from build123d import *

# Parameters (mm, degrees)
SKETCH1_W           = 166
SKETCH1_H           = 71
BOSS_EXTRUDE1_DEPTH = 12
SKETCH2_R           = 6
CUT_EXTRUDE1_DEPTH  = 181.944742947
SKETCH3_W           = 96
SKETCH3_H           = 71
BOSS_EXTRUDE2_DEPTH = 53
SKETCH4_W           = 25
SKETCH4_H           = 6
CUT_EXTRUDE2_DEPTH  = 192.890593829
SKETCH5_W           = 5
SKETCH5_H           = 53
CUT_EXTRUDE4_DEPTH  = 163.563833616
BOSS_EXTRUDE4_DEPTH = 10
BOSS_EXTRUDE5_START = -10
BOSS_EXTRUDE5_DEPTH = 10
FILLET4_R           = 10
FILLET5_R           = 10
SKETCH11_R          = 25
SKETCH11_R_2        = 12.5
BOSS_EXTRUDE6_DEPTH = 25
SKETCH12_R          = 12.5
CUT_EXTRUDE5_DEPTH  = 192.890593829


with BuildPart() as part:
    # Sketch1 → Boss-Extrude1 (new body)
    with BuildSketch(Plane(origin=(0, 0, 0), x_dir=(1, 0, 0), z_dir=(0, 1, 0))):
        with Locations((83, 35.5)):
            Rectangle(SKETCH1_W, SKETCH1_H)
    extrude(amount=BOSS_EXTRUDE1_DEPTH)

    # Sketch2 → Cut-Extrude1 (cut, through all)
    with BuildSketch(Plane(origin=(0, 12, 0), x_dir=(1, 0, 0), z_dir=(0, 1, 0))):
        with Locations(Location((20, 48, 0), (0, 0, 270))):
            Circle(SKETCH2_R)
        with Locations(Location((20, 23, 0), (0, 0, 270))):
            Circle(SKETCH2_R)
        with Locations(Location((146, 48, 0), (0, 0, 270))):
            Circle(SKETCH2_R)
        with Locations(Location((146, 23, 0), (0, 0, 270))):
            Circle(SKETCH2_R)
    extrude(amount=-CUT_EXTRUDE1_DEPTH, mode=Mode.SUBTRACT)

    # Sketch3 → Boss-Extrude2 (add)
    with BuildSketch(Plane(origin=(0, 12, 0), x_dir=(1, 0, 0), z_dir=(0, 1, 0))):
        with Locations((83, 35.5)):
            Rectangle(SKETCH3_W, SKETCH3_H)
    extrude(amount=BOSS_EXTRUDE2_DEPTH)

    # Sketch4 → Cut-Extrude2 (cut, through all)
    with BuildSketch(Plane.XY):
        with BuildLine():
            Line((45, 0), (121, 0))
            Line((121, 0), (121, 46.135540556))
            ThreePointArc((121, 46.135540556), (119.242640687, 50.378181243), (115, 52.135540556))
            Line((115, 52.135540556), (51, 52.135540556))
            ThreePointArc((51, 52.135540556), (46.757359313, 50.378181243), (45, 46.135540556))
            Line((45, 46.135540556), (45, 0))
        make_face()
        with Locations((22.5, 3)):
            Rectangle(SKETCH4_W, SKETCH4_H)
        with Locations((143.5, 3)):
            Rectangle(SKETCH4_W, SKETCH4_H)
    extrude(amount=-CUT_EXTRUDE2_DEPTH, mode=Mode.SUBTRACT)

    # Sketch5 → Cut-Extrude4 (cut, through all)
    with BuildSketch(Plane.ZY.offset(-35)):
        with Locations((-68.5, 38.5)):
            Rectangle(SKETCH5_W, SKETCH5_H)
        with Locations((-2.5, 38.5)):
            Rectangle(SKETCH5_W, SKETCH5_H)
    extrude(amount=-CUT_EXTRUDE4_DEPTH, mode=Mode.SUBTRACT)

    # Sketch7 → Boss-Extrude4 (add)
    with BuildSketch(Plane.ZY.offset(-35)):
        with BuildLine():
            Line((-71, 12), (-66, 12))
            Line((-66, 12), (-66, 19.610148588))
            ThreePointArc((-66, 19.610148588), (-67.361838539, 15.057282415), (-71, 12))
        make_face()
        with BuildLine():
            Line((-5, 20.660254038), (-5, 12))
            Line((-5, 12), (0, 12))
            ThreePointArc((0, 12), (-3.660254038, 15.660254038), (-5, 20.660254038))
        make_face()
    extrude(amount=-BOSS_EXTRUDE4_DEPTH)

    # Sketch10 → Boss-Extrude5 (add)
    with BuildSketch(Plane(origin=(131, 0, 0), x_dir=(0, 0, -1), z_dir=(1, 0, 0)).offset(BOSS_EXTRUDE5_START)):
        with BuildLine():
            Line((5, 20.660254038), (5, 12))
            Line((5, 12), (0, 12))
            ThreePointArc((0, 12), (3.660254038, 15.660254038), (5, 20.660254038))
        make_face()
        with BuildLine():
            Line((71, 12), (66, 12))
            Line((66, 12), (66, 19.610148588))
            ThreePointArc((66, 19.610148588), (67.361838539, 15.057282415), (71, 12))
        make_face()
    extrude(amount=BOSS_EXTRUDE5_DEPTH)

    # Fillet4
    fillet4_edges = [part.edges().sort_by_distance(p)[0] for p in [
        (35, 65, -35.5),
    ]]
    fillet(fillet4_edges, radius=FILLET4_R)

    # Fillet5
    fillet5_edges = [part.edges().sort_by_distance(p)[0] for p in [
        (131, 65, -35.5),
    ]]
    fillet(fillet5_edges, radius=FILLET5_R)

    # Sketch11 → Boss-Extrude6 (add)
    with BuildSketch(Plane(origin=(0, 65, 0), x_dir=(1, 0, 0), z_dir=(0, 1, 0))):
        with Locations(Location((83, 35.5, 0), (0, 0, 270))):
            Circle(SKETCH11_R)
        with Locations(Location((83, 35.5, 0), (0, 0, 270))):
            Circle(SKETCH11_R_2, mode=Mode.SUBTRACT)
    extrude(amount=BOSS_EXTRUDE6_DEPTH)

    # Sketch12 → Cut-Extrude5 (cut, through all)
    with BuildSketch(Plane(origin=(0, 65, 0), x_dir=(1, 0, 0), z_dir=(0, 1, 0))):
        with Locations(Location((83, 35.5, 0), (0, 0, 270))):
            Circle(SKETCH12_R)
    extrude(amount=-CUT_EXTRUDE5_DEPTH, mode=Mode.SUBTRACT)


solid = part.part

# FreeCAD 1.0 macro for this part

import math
import FreeCAD as App
import Part
import Sketcher


def edges_at(feature, points):
    """Names of the edges that pass closest to the given points."""
    edges = feature.Shape.Edges
    near = lambda p: min(range(len(edges)), key=lambda i: edges[i].distToShape(Part.Vertex(*p))[0])
    return sorted({f"Edge{near(p) + 1}" for p in points})

doc = App.newDocument("Part")
params = doc.addObject("Spreadsheet::Sheet", "Params")
for row, (alias, value) in enumerate([
    ("sketch1_width", "166 mm"),
    ("sketch1_height", "71 mm"),
    ("pad1_length", "12 mm"),
    ("sketch2_diameter", "12 mm"),
    ("sketch3_width", "96 mm"),
    ("sketch3_height", "71 mm"),
    ("pad2_length", "53 mm"),
    ("sketch4_radius", "6 mm"),
    ("sketch4_width", "76 mm"),
    ("sketch4_width2", "25 mm"),
    ("sketch4_height", "6 mm"),
    ("sketch5_width", "53 mm"),
    ("sketch5_height", "5 mm"),
    ("sketch6_radius", "10 mm"),
    ("sketch6_height", "5 mm"),
    ("pad3_length", "10 mm"),
    ("sketch7_radius", "10 mm"),
    ("sketch7_height", "5 mm"),
    ("pad4_length", "10 mm"),
    ("fillet_radius", "10 mm"),
    ("fillet2_radius", "10 mm"),
    ("sketch8_diameter", "50 mm"),
    ("sketch8_diameter2", "25 mm"),
    ("pad5_length", "25 mm"),
    ("sketch9_diameter", "25 mm"),
], start=1):
    params.set(f"A{row}", alias)
    params.set(f"B{row}", "=" + value)
    params.setAlias(f"B{row}", alias)

body = doc.addObject("PartDesign::Body", "Body")

sketch1 = doc.addObject("Sketcher::SketchObject", "Sketch")
body.addObject(sketch1)
sketch1.AttachmentSupport = (doc.XZ_Plane, [""])
sketch1.MapMode = "FlatFace"
sketch1.addGeometry([
    Part.LineSegment(App.Vector(0, -71, 0), App.Vector(0, 0, 0)),
    Part.LineSegment(App.Vector(0, 0, 0), App.Vector(166, 0, 0)),
    Part.LineSegment(App.Vector(166, 0, 0), App.Vector(166, -71, 0)),
    Part.LineSegment(App.Vector(166, -71, 0), App.Vector(0, -71, 0)),
], False)
sketch1.addConstraint([
    Sketcher.Constraint("Coincident", 0, 2, 1, 1),
    Sketcher.Constraint("Coincident", 1, 2, 2, 1),
    Sketcher.Constraint("Coincident", 2, 2, 3, 1),
    Sketcher.Constraint("Coincident", 3, 2, 0, 1),
    Sketcher.Constraint("Vertical", 0),
    Sketcher.Constraint("Horizontal", 1),
    Sketcher.Constraint("Vertical", 2),
    Sketcher.Constraint("Horizontal", 3),
    Sketcher.Constraint("Coincident", 0, 2, -1, 1),
    Sketcher.Constraint("DistanceX", 1, 1, 1, 2, 166.0),
    Sketcher.Constraint("DistanceY", 0, 1, 0, 2, 71.0),
])
sketch1.setExpression("Constraints[9]", "Params.sketch1_width")
sketch1.setExpression("Constraints[10]", "Params.sketch1_height")
pad1 = doc.addObject("PartDesign::Pad", "Pad")
body.addObject(pad1)
pad1.Profile = sketch1
pad1.setExpression("Length", "Params.pad1_length")
pad1.Reversed = True

sketch2 = doc.addObject("Sketcher::SketchObject", "Sketch001")
body.addObject(sketch2)
sketch2.AttachmentSupport = (doc.XZ_Plane, [""])
sketch2.MapMode = "FlatFace"
sketch2.AttachmentOffset = App.Placement(App.Vector(0, 0, -12), App.Rotation())
sketch2.addGeometry([
    Part.Circle(App.Vector(20, -48, 0), App.Vector(0, 0, 1), 6),
    Part.Circle(App.Vector(20, -23, 0), App.Vector(0, 0, 1), 6),
    Part.Circle(App.Vector(146, -48, 0), App.Vector(0, 0, 1), 6),
    Part.Circle(App.Vector(146, -23, 0), App.Vector(0, 0, 1), 6),
], False)
sketch2.addConstraint([
    Sketcher.Constraint("Equal", 0, 1),
    Sketcher.Constraint("Equal", 1, 2),
    Sketcher.Constraint("Equal", 2, 3),
    Sketcher.Constraint("Horizontal", 0, 3, 2, 3),
    Sketcher.Constraint("Horizontal", 1, 3, 3, 3),
    Sketcher.Constraint("Vertical", 0, 3, 1, 3),
    Sketcher.Constraint("Vertical", 2, 3, 3, 3),
    Sketcher.Constraint("Diameter", 0, 12.0),
    Sketcher.Constraint("DistanceX", -1, 1, 0, 3, 20.0),
    Sketcher.Constraint("DistanceY", 0, 3, -1, 1, 48.0),
    Sketcher.Constraint("DistanceY", 1, 3, -1, 1, 23.0),
    Sketcher.Constraint("DistanceX", -1, 1, 2, 3, 146.0),
])
sketch2.setExpression("Constraints[7]", "Params.sketch2_diameter")
pocket1 = doc.addObject("PartDesign::Pocket", "Pocket")
body.addObject(pocket1)
pocket1.Profile = sketch2
pocket1.Type = "ThroughAll"
pocket1.Reversed = True

sketch3 = doc.addObject("Sketcher::SketchObject", "Sketch002")
body.addObject(sketch3)
sketch3.AttachmentSupport = (doc.XZ_Plane, [""])
sketch3.MapMode = "FlatFace"
sketch3.AttachmentOffset = App.Placement(App.Vector(0, 0, -12), App.Rotation())
sketch3.addGeometry([
    Part.LineSegment(App.Vector(35, -71, 0), App.Vector(35, 0, 0)),
    Part.LineSegment(App.Vector(35, 0, 0), App.Vector(131, 0, 0)),
    Part.LineSegment(App.Vector(131, 0, 0), App.Vector(131, -71, 0)),
    Part.LineSegment(App.Vector(131, -71, 0), App.Vector(35, -71, 0)),
], False)
sketch3.addConstraint([
    Sketcher.Constraint("Coincident", 0, 2, 1, 1),
    Sketcher.Constraint("Coincident", 1, 2, 2, 1),
    Sketcher.Constraint("Coincident", 2, 2, 3, 1),
    Sketcher.Constraint("Coincident", 3, 2, 0, 1),
    Sketcher.Constraint("Vertical", 0),
    Sketcher.Constraint("Horizontal", 1),
    Sketcher.Constraint("Vertical", 2),
    Sketcher.Constraint("Horizontal", 3),
    Sketcher.Constraint("PointOnObject", 0, 2, -1),
    Sketcher.Constraint("DistanceX", 1, 1, 1, 2, 96.0),
    Sketcher.Constraint("DistanceY", 0, 1, 0, 2, 71.0),
    Sketcher.Constraint("DistanceX", -1, 1, 0, 2, 35.0),
])
sketch3.setExpression("Constraints[9]", "Params.sketch3_width")
sketch3.setExpression("Constraints[10]", "Params.sketch3_height")
pad2 = doc.addObject("PartDesign::Pad", "Pad001")
body.addObject(pad2)
pad2.Profile = sketch3
pad2.setExpression("Length", "Params.pad2_length")
pad2.Reversed = True

sketch4 = doc.addObject("Sketcher::SketchObject", "Sketch003")
body.addObject(sketch4)
sketch4.AttachmentSupport = (doc.XY_Plane, [""])
sketch4.MapMode = "FlatFace"
sketch4.addGeometry([
    Part.LineSegment(App.Vector(45, 0, 0), App.Vector(121, 0, 0)),
    Part.LineSegment(App.Vector(121, 0, 0), App.Vector(121, 46, 0)),
    Part.ArcOfCircle(Part.Circle(App.Vector(115, 46, 0), App.Vector(0, 0, 1), 6), math.radians(0), math.radians(90)),
    Part.LineSegment(App.Vector(115, 52, 0), App.Vector(51, 52, 0)),
    Part.ArcOfCircle(Part.Circle(App.Vector(51, 46, 0), App.Vector(0, 0, 1), 6), math.radians(90), math.radians(180)),
    Part.LineSegment(App.Vector(45, 46, 0), App.Vector(45, 0, 0)),
    Part.LineSegment(App.Vector(10, 6, 0), App.Vector(10, 0, 0)),
    Part.LineSegment(App.Vector(10, 0, 0), App.Vector(35, 0, 0)),
    Part.LineSegment(App.Vector(35, 0, 0), App.Vector(35, 6, 0)),
    Part.LineSegment(App.Vector(35, 6, 0), App.Vector(10, 6, 0)),
    Part.LineSegment(App.Vector(131, 6, 0), App.Vector(131, 0, 0)),
    Part.LineSegment(App.Vector(131, 0, 0), App.Vector(156, 0, 0)),
    Part.LineSegment(App.Vector(156, 0, 0), App.Vector(156, 6, 0)),
    Part.LineSegment(App.Vector(156, 6, 0), App.Vector(131, 6, 0)),
], False)
sketch4.addConstraint([
    Sketcher.Constraint("Coincident", 0, 2, 1, 1),
    Sketcher.Constraint("Tangent", 1, 2, 2, 1),
    Sketcher.Constraint("Tangent", 2, 2, 3, 1),
    Sketcher.Constraint("Tangent", 3, 2, 4, 1),
    Sketcher.Constraint("Tangent", 4, 2, 5, 1),
    Sketcher.Constraint("Coincident", 5, 2, 0, 1),
    Sketcher.Constraint("Coincident", 6, 2, 7, 1),
    Sketcher.Constraint("Coincident", 7, 2, 8, 1),
    Sketcher.Constraint("Coincident", 8, 2, 9, 1),
    Sketcher.Constraint("Coincident", 9, 2, 6, 1),
    Sketcher.Constraint("Coincident", 10, 2, 11, 1),
    Sketcher.Constraint("Coincident", 11, 2, 12, 1),
    Sketcher.Constraint("Coincident", 12, 2, 13, 1),
    Sketcher.Constraint("Coincident", 13, 2, 10, 1),
    Sketcher.Constraint("Horizontal", 0),
    Sketcher.Constraint("Vertical", 1),
    Sketcher.Constraint("Horizontal", 3),
    Sketcher.Constraint("Vertical", 5),
    Sketcher.Constraint("Vertical", 6),
    Sketcher.Constraint("Horizontal", 7),
    Sketcher.Constraint("Vertical", 8),
    Sketcher.Constraint("Horizontal", 9),
    Sketcher.Constraint("Vertical", 10),
    Sketcher.Constraint("Horizontal", 11),
    Sketcher.Constraint("Vertical", 12),
    Sketcher.Constraint("Horizontal", 13),
    Sketcher.Constraint("Equal", 2, 4),
    Sketcher.Constraint("PointOnObject", 0, 2, -1),
    Sketcher.Constraint("PointOnObject", 6, 2, -1),
    Sketcher.Constraint("PointOnObject", 10, 2, -1),
    Sketcher.Constraint("Horizontal", 9, 2, 12, 2),
    Sketcher.Constraint("Equal", 9, 11),
    Sketcher.Constraint("Radius", 2, 6.0),
    Sketcher.Constraint("DistanceX", 0, 1, 0, 2, 76.0),
    Sketcher.Constraint("DistanceX", 7, 1, 7, 2, 25.0),
    Sketcher.Constraint("DistanceY", 6, 2, 6, 1, 6.0),
    Sketcher.Constraint("DistanceX", -1, 1, 2, 3, 115.0),
    Sketcher.Constraint("DistanceX", -1, 1, 6, 2, 10.0),
    Sketcher.Constraint("DistanceX", -1, 1, 10, 2, 131.0),
    Sketcher.Constraint("DistanceY", 1, 1, 1, 2, 46.135541),
])
sketch4.setExpression("Constraints[32]", "Params.sketch4_radius")
sketch4.setExpression("Constraints[33]", "Params.sketch4_width")
sketch4.setExpression("Constraints[34]", "Params.sketch4_width2")
sketch4.setExpression("Constraints[35]", "Params.sketch4_height")
pocket2 = doc.addObject("PartDesign::Pocket", "Pocket001")
body.addObject(pocket2)
pocket2.Profile = sketch4
pocket2.Type = "ThroughAll"

sketch5 = doc.addObject("Sketcher::SketchObject", "Sketch004")
body.addObject(sketch5)
sketch5.AttachmentSupport = (doc.YZ_Plane, [""])
sketch5.MapMode = "FlatFace"
sketch5.AttachmentOffset = App.Placement(App.Vector(0, 0, 35), App.Rotation())
sketch5.addGeometry([
    Part.LineSegment(App.Vector(65, -71, 0), App.Vector(12, -71, 0)),
    Part.LineSegment(App.Vector(12, -71, 0), App.Vector(12, -66, 0)),
    Part.LineSegment(App.Vector(12, -66, 0), App.Vector(65, -66, 0)),
    Part.LineSegment(App.Vector(65, -66, 0), App.Vector(65, -71, 0)),
    Part.LineSegment(App.Vector(65, -5, 0), App.Vector(12, -5, 0)),
    Part.LineSegment(App.Vector(12, -5, 0), App.Vector(12, 0, 0)),
    Part.LineSegment(App.Vector(12, 0, 0), App.Vector(65, 0, 0)),
    Part.LineSegment(App.Vector(65, 0, 0), App.Vector(65, -5, 0)),
], False)
sketch5.addConstraint([
    Sketcher.Constraint("Coincident", 0, 2, 1, 1),
    Sketcher.Constraint("Coincident", 1, 2, 2, 1),
    Sketcher.Constraint("Coincident", 2, 2, 3, 1),
    Sketcher.Constraint("Coincident", 3, 2, 0, 1),
    Sketcher.Constraint("Coincident", 4, 2, 5, 1),
    Sketcher.Constraint("Coincident", 5, 2, 6, 1),
    Sketcher.Constraint("Coincident", 6, 2, 7, 1),
    Sketcher.Constraint("Coincident", 7, 2, 4, 1),
    Sketcher.Constraint("Horizontal", 0),
    Sketcher.Constraint("Vertical", 1),
    Sketcher.Constraint("Horizontal", 2),
    Sketcher.Constraint("Vertical", 3),
    Sketcher.Constraint("Horizontal", 4),
    Sketcher.Constraint("Vertical", 5),
    Sketcher.Constraint("Horizontal", 6),
    Sketcher.Constraint("Vertical", 7),
    Sketcher.Constraint("PointOnObject", 5, 2, -1),
    Sketcher.Constraint("Vertical", 1, 2, 4, 2),
    Sketcher.Constraint("Vertical", 3, 2, 6, 2),
    Sketcher.Constraint("Equal", 3, 5),
    Sketcher.Constraint("DistanceX", 0, 2, 0, 1, 53.0),
    Sketcher.Constraint("DistanceY", 1, 1, 1, 2, 5.0),
    Sketcher.Constraint("DistanceX", -1, 1, 0, 2, 12.0),
    Sketcher.Constraint("DistanceY", 0, 2, -1, 1, 71.0),
])
sketch5.setExpression("Constraints[20]", "Params.sketch5_width")
sketch5.setExpression("Constraints[21]", "Params.sketch5_height")
pocket3 = doc.addObject("PartDesign::Pocket", "Pocket002")
body.addObject(pocket3)
pocket3.Profile = sketch5
pocket3.Type = "ThroughAll"
pocket3.Reversed = True

sketch6 = doc.addObject("Sketcher::SketchObject", "Sketch005")
body.addObject(sketch6)
sketch6.AttachmentSupport = (doc.YZ_Plane, [""])
sketch6.MapMode = "FlatFace"
sketch6.AttachmentOffset = App.Placement(App.Vector(0, 0, 35), App.Rotation())
sketch6.addGeometry([
    Part.LineSegment(App.Vector(12, -71, 0), App.Vector(12, -66, 0)),
    Part.LineSegment(App.Vector(12, -66, 0), App.Vector(20, -66, 0)),
    Part.ArcOfCircle(Part.Circle(App.Vector(20, -74, 0), App.Vector(0, 0, 1), 8), math.radians(90), math.radians(157)),
    Part.LineSegment(App.Vector(21, -5, 0), App.Vector(12, -5, 0)),
    Part.LineSegment(App.Vector(12, -5, 0), App.Vector(12, 0, 0)),
    Part.ArcOfCircle(Part.Circle(App.Vector(21, 5, 0), App.Vector(0, 0, 1), 10), math.radians(-150), math.radians(-90)),
], False)
sketch6.addConstraint([
    Sketcher.Constraint("Coincident", 0, 2, 1, 1),
    Sketcher.Constraint("Tangent", 1, 2, 2, 1),
    Sketcher.Constraint("Coincident", 2, 2, 0, 1),
    Sketcher.Constraint("Coincident", 3, 2, 4, 1),
    Sketcher.Constraint("Coincident", 4, 2, 5, 1),
    Sketcher.Constraint("Tangent", 5, 2, 3, 1),
    Sketcher.Constraint("Vertical", 0),
    Sketcher.Constraint("Horizontal", 1),
    Sketcher.Constraint("Horizontal", 3),
    Sketcher.Constraint("Vertical", 4),
    Sketcher.Constraint("PointOnObject", 4, 2, -1),
    Sketcher.Constraint("Vertical", 2, 2, 3, 2),
    Sketcher.Constraint("Equal", 0, 4),
    Sketcher.Constraint("Radius", 5, 10.0),
    Sketcher.Constraint("DistanceY", 0, 1, 0, 2, 5.0),
    Sketcher.Constraint("DistanceX", -1, 1, 0, 2, 12.0),
    Sketcher.Constraint("DistanceY", 0, 2, -1, 1, 66.0),
    Sketcher.Constraint("Radius", 2, 8.291436),
])
sketch6.setExpression("Constraints[13]", "Params.sketch6_radius")
sketch6.setExpression("Constraints[14]", "Params.sketch6_height")
pad3 = doc.addObject("PartDesign::Pad", "Pad002")
body.addObject(pad3)
pad3.Profile = sketch6
pad3.setExpression("Length", "Params.pad3_length")

sketch7 = doc.addObject("Sketcher::SketchObject", "Sketch006")
body.addObject(sketch7)
sketch7.AttachmentSupport = (doc.YZ_Plane, [""])
sketch7.MapMode = "FlatFace"
sketch7.AttachmentOffset = App.Placement(App.Vector(0, 0, 121), App.Rotation())
sketch7.addGeometry([
    Part.LineSegment(App.Vector(12, -5, 0), App.Vector(21, -5, 0)),
    Part.ArcOfCircle(Part.Circle(App.Vector(21, 5, 0), App.Vector(0, 0, 1), 10), math.radians(-150), math.radians(-90)),
    Part.LineSegment(App.Vector(12, 0, 0), App.Vector(12, -5, 0)),
    Part.LineSegment(App.Vector(12, -66, 0), App.Vector(12, -71, 0)),
    Part.ArcOfCircle(Part.Circle(App.Vector(20, -74, 0), App.Vector(0, 0, 1), 8), math.radians(90), math.radians(157)),
    Part.LineSegment(App.Vector(20, -66, 0), App.Vector(12, -66, 0)),
], False)
sketch7.addConstraint([
    Sketcher.Constraint("Tangent", 0, 2, 1, 2),
    Sketcher.Constraint("Coincident", 1, 1, 2, 1),
    Sketcher.Constraint("Coincident", 2, 2, 0, 1),
    Sketcher.Constraint("Coincident", 3, 2, 4, 2),
    Sketcher.Constraint("Tangent", 4, 1, 5, 1),
    Sketcher.Constraint("Coincident", 5, 2, 3, 1),
    Sketcher.Constraint("Horizontal", 0),
    Sketcher.Constraint("Vertical", 2),
    Sketcher.Constraint("Vertical", 3),
    Sketcher.Constraint("Horizontal", 5),
    Sketcher.Constraint("PointOnObject", 1, 1, -1),
    Sketcher.Constraint("Vertical", 2, 2, 3, 2),
    Sketcher.Constraint("Equal", 2, 3),
    Sketcher.Constraint("Radius", 1, 10.0),
    Sketcher.Constraint("DistanceY", 2, 2, 2, 1, 5.0),
    Sketcher.Constraint("DistanceX", -1, 1, 1, 1, 12.0),
    Sketcher.Constraint("DistanceY", 3, 2, -1, 1, 71.0),
    Sketcher.Constraint("Radius", 4, 8.291436),
])
sketch7.setExpression("Constraints[13]", "Params.sketch7_radius")
sketch7.setExpression("Constraints[14]", "Params.sketch7_height")
pad4 = doc.addObject("PartDesign::Pad", "Pad003")
body.addObject(pad4)
pad4.Profile = sketch7
pad4.setExpression("Length", "Params.pad4_length")
doc.recompute()

fillet = doc.addObject("PartDesign::Fillet", "Fillet")
body.addObject(fillet)
fillet.Base = (pad4, edges_at(pad4, [(35, 65, -35.5)]))
fillet.setExpression("Radius", "Params.fillet_radius")
doc.recompute()

fillet2 = doc.addObject("PartDesign::Fillet", "Fillet001")
body.addObject(fillet2)
fillet2.Base = (fillet, edges_at(fillet, [(131, 65, -35.5)]))
fillet2.setExpression("Radius", "Params.fillet2_radius")

sketch8 = doc.addObject("Sketcher::SketchObject", "Sketch007")
body.addObject(sketch8)
sketch8.AttachmentSupport = (doc.XZ_Plane, [""])
sketch8.MapMode = "FlatFace"
sketch8.AttachmentOffset = App.Placement(App.Vector(0, 0, -65), App.Rotation())
sketch8.addGeometry([
    Part.Circle(App.Vector(83, -36, 0), App.Vector(0, 0, 1), 25),
    Part.Circle(App.Vector(83, -36, 0), App.Vector(0, 0, 1), 12),
], False)
sketch8.addConstraint([
    Sketcher.Constraint("Coincident", 1, 3, 0, 3),
    Sketcher.Constraint("Diameter", 0, 50.0),
    Sketcher.Constraint("Diameter", 1, 25.0),
    Sketcher.Constraint("DistanceX", -1, 1, 0, 3, 83.0),
    Sketcher.Constraint("DistanceY", 0, 3, -1, 1, 35.5),
])
sketch8.setExpression("Constraints[1]", "Params.sketch8_diameter")
sketch8.setExpression("Constraints[2]", "Params.sketch8_diameter2")
pad5 = doc.addObject("PartDesign::Pad", "Pad004")
body.addObject(pad5)
pad5.Profile = sketch8
pad5.setExpression("Length", "Params.pad5_length")
pad5.Reversed = True

sketch9 = doc.addObject("Sketcher::SketchObject", "Sketch008")
body.addObject(sketch9)
sketch9.AttachmentSupport = (doc.XZ_Plane, [""])
sketch9.MapMode = "FlatFace"
sketch9.AttachmentOffset = App.Placement(App.Vector(0, 0, -65), App.Rotation())
sketch9.addGeometry(Part.Circle(App.Vector(83, -36, 0), App.Vector(0, 0, 1), 12), False)
sketch9.addConstraint([
    Sketcher.Constraint("Diameter", 0, 25.0),
    Sketcher.Constraint("DistanceX", -1, 1, 0, 3, 83.0),
    Sketcher.Constraint("DistanceY", 0, 3, -1, 1, 35.5),
])
sketch9.setExpression("Constraints[0]", "Params.sketch9_diameter")
pocket4 = doc.addObject("PartDesign::Pocket", "Pocket003")
body.addObject(pocket4)
pocket4.Profile = sketch9
pocket4.Type = "ThroughAll"
pocket4.Reversed = True

doc.recompute()
